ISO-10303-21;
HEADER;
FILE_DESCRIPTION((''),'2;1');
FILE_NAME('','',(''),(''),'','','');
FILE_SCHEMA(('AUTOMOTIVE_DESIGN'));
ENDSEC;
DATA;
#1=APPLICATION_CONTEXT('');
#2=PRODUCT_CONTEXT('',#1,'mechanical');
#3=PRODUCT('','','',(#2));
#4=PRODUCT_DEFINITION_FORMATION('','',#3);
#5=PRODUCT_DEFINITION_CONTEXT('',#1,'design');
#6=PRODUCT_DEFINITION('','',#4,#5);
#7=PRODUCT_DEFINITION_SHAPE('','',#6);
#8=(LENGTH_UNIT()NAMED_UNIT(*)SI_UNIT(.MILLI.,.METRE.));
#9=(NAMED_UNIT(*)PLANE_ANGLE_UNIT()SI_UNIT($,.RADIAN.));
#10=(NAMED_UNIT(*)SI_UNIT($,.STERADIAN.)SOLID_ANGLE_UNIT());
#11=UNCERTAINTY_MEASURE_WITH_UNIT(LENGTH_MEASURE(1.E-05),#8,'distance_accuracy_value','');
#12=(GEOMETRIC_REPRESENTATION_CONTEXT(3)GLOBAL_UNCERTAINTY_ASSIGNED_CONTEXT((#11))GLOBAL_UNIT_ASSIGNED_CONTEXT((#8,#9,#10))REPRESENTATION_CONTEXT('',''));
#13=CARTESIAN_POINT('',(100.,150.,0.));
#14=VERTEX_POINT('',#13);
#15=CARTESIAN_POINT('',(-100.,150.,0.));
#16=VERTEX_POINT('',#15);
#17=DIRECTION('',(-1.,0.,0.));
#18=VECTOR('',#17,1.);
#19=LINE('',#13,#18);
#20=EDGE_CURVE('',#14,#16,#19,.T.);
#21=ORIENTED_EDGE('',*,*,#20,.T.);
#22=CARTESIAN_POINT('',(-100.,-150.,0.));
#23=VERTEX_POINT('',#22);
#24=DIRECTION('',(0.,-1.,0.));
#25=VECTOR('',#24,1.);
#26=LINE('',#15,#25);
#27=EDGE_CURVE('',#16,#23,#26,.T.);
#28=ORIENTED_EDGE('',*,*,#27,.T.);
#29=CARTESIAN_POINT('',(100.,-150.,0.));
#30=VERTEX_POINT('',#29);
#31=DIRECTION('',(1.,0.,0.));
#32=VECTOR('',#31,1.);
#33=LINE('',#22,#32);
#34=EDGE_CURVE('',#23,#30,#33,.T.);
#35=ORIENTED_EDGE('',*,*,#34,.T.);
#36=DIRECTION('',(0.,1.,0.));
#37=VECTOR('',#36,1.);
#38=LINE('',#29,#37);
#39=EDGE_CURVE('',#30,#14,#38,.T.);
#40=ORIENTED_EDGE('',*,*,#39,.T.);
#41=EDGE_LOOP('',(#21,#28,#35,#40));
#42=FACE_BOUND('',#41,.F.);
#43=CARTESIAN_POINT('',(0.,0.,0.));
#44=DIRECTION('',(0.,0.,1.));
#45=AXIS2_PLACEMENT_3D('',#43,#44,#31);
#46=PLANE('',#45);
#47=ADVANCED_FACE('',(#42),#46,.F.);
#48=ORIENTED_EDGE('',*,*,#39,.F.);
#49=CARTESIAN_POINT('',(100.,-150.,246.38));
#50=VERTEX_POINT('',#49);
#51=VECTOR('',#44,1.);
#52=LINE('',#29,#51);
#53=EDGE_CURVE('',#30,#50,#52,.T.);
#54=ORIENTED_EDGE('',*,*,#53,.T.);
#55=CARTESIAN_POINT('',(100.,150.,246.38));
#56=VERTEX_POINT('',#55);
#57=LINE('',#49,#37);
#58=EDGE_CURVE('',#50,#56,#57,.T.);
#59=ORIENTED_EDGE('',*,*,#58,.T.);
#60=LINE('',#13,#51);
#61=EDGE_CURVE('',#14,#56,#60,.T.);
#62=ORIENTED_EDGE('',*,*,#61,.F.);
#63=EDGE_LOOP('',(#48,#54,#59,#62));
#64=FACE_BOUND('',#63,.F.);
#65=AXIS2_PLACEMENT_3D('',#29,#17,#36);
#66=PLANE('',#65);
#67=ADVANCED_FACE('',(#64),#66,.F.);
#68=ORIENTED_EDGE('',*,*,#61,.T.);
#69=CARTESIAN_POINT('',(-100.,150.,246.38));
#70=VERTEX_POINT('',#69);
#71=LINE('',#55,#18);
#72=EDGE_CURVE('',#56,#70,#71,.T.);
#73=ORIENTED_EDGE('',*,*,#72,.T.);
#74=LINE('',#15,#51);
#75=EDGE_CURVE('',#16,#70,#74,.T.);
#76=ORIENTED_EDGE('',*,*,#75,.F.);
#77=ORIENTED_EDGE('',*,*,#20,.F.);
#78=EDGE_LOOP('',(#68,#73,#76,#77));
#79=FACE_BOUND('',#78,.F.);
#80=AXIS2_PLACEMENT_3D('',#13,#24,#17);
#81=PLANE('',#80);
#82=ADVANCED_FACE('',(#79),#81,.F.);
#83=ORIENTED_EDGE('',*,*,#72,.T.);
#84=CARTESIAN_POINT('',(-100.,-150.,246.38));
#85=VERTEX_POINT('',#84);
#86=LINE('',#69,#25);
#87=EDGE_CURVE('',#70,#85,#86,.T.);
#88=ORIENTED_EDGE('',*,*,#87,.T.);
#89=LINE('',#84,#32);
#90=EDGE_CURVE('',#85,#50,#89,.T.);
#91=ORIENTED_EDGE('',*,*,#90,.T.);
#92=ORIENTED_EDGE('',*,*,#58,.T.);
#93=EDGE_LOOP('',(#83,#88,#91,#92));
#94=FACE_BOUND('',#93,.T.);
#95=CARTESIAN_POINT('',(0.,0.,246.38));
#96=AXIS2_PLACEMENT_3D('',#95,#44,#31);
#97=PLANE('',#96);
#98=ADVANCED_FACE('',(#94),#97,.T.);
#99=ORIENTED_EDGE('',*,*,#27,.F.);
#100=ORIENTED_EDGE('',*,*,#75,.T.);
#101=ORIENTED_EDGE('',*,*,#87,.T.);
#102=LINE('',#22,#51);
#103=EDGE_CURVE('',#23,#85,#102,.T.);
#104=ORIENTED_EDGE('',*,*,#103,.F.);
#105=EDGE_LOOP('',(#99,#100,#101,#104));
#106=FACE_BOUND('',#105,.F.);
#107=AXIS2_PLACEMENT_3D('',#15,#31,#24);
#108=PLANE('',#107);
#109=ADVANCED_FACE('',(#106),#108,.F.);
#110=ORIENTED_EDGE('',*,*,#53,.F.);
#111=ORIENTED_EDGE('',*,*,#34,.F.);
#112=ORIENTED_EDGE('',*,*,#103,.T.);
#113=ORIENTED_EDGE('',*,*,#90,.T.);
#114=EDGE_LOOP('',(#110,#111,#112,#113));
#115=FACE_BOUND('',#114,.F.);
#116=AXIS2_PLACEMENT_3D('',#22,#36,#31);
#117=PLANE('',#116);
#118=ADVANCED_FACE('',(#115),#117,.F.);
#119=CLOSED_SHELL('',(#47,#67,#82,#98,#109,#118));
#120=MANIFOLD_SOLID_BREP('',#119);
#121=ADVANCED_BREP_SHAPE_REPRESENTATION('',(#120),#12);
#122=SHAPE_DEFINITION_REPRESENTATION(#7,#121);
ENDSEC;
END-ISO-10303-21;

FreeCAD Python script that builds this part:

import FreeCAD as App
import Part
import Sketcher

V = App.Vector
Q = App.Units.Quantity

doc = App.newDocument("Part")
body = doc.addObject("PartDesign::Body", "Body")

sketch1 = body.newObject("Sketcher::SketchObject", "Sketch")
sketch1.AttachmentSupport = (doc.getObject("XY_Plane"), [""])
sketch1.MapMode = "FlatFace"
sketch1.addGeometry([
    Part.LineSegment(V(-100, 150, 0), V(-100, -150, 0)),
    Part.LineSegment(V(-100, -150, 0), V(100, -150, 0)),
    Part.LineSegment(V(100, -150, 0), V(100, 150, 0)),
    Part.LineSegment(V(100, 150, 0), V(-100, 150, 0)),
], False)
sketch1.addConstraint([
    Sketcher.Constraint("Coincident", 0, 2, 1, 1),
    Sketcher.Constraint("Coincident", 1, 2, 2, 1),
    Sketcher.Constraint("Coincident", 2, 2, 3, 1),
    Sketcher.Constraint("Coincident", 3, 2, 0, 1),
    Sketcher.Constraint("Vertical", 0),
    Sketcher.Constraint("Horizontal", 1),
    Sketcher.Constraint("Vertical", 2),
    Sketcher.Constraint("Horizontal", 3),
    Sketcher.Constraint("Symmetric", 0, 2, 2, 2, -1, 1),
    Sketcher.Constraint("DistanceX", 1, 1, 1, 2, Q("200 mm")),
    Sketcher.Constraint("DistanceY", 0, 2, 0, 1, Q("300 mm")),
])
pad1 = body.newObject("PartDesign::Pad", "Pad")
pad1.Profile = sketch1
pad1.Length = 246.38

doc.recompute()
